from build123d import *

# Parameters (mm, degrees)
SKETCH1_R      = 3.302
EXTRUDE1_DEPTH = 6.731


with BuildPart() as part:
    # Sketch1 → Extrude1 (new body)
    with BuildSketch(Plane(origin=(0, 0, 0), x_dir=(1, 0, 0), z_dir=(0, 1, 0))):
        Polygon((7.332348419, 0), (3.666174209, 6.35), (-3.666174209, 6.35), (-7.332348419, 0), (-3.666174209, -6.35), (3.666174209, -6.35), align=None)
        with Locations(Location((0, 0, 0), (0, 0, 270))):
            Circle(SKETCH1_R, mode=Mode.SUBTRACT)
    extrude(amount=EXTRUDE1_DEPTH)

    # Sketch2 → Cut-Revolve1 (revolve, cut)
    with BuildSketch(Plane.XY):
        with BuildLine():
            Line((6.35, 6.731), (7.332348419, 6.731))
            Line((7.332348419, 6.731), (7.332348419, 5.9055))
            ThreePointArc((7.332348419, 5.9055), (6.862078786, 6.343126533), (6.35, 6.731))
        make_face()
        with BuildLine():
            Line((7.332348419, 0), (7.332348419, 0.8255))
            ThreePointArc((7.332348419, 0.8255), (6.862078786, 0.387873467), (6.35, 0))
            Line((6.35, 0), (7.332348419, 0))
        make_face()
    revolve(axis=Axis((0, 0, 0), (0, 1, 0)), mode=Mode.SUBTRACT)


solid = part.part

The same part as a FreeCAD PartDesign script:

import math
import FreeCAD as App
import Part
import Sketcher
Q = App.Units.Quantity

doc = App.newDocument("Part")
body = doc.addObject("PartDesign::Body", "Body")

# Sketch on XZ plane
sketch1 = body.newObject("Sketcher::SketchObject", "Sketch")
sketch1.AttachmentSupport = (doc.getObject("XZ_Plane"), [""])
sketch1.MapMode = "FlatFace"
sketch1.addGeometry([
    Part.LineSegment(App.Vector(7.3, 0, 0), App.Vector(3.7, -6.3, 0)),  # 0
    Part.LineSegment(App.Vector(3.7, -6.3, 0), App.Vector(-3.7, -6.3, 0)),  # 1
    Part.LineSegment(App.Vector(-3.7, -6.3, 0), App.Vector(-7.3, 0, 0)),  # 2
    Part.LineSegment(App.Vector(-7.3, 0, 0), App.Vector(-3.7, 6.3, 0)),  # 3
    Part.LineSegment(App.Vector(-3.7, 6.3, 0), App.Vector(3.7, 6.3, 0)),  # 4
    Part.LineSegment(App.Vector(3.7, 6.3, 0), App.Vector(7.3, 0, 0)),  # 5
    Part.Circle(App.Vector(0, 0, 0), App.Vector(0, 0, 1), 3.3),  # 6
], False)
sketch1.addConstraint([
    Sketcher.Constraint("Coincident", 0, 2, 1, 1),
    Sketcher.Constraint("Coincident", 1, 2, 2, 1),
    Sketcher.Constraint("Coincident", 2, 2, 3, 1),
    Sketcher.Constraint("Coincident", 3, 2, 4, 1),
    Sketcher.Constraint("Coincident", 4, 2, 5, 1),
    Sketcher.Constraint("Coincident", 5, 2, 0, 1),
    Sketcher.Constraint("Horizontal", 1),
    Sketcher.Constraint("Horizontal", 4),
    Sketcher.Constraint("Coincident", 6, 3, -1, 1),
    Sketcher.Constraint("Symmetric", 0, 2, 3, 2, -1, 1),
    Sketcher.Constraint("Symmetric", 2, 2, 5, 2, -1, 1),
    Sketcher.Constraint("PointOnObject", 2, 2, -1),
    Sketcher.Constraint("Parallel", 2, 5),
    Sketcher.Constraint("Vertical", 1, 2, 3, 2),
    Sketcher.Constraint("Diameter", 6, Q("0.26 in")),
    Sketcher.Constraint("Angle", 0, Q("-120 deg")),
    Sketcher.Constraint("DistanceY", 1, 2, 3, 2, Q("0.5 in")),
    Sketcher.Constraint("DistanceX", 1, 2, 1, 1, Q("7.332348 mm")),
])
pad1 = body.newObject("PartDesign::Pad", "Pad")
pad1.Profile = sketch1
pad1.Length = Q("0.265 in")
pad1.Reversed = True

# Sketch on XY plane
sketch2 = body.newObject("Sketcher::SketchObject", "Sketch001")
sketch2.AttachmentSupport = (doc.getObject("XY_Plane"), [""])
sketch2.MapMode = "FlatFace"
sketch2.addGeometry([
    Part.LineSegment(App.Vector(7.3, 6.7, 0), App.Vector(6.3, 6.7, 0)),  # 0
    Part.ArcOfCircle(Part.Circle(App.Vector(2.8, 1.5, 0), App.Vector(0, 0, 1), 6.3), math.radians(44.16), math.radians(55.76)),  # 1
    Part.LineSegment(App.Vector(7.3, 5.9, 0), App.Vector(7.3, 6.7, 0)),  # 2
    Part.LineSegment(App.Vector(7.3, 0, 0), App.Vector(7.3, 0.8, 0)),  # 3
    Part.ArcOfCircle(Part.Circle(App.Vector(2.8, 5.2, 0), App.Vector(0, 0, 1), 6.3), math.radians(-55.76), math.radians(-44.16)),  # 4
    Part.LineSegment(App.Vector(6.3, 0, 0), App.Vector(7.3, 0, 0)),  # 5
], False)
sketch2.addConstraint([
    Sketcher.Constraint("Coincident", 0, 2, 1, 2),
    Sketcher.Constraint("Coincident", 1, 1, 2, 1),
    Sketcher.Constraint("Coincident", 2, 2, 0, 1),
    Sketcher.Constraint("Coincident", 3, 2, 4, 2),
    Sketcher.Constraint("Coincident", 4, 1, 5, 1),
    Sketcher.Constraint("Coincident", 5, 2, 3, 1),
    Sketcher.Constraint("Horizontal", 0),
    Sketcher.Constraint("Vertical", 2),
    Sketcher.Constraint("Vertical", 3),
    Sketcher.Constraint("Horizontal", 5),
    Sketcher.Constraint("Equal", 1, 4),
    Sketcher.Constraint("PointOnObject", 4, 1, -1),
    Sketcher.Constraint("Vertical", 1, 3, 4, 3),
    Sketcher.Constraint("Vertical", 2, 2, 3, 2),
    Sketcher.Constraint("Vertical", 0, 2, 4, 1),
    Sketcher.Constraint("Radius", 1, Q("0.25 in")),
    Sketcher.Constraint("DistanceY", 3, 2, 1, 1, Q("0.2 in")),
    Sketcher.Constraint("DistanceX", -1, 1, 0, 2, Q("0.25 in")),
    Sketcher.Constraint("DistanceY", 2, 1, 2, 2, Q("0.0325 in")),
    Sketcher.Constraint("DistanceX", 0, 2, 0, 1, Q("0.982348 mm")),
])
groove = body.newObject("PartDesign::Groove", "Groove")
groove.Profile = sketch2
groove.ReferenceAxis = (sketch2, ["V_Axis"])
groove.Angle = 360

doc.recompute()
